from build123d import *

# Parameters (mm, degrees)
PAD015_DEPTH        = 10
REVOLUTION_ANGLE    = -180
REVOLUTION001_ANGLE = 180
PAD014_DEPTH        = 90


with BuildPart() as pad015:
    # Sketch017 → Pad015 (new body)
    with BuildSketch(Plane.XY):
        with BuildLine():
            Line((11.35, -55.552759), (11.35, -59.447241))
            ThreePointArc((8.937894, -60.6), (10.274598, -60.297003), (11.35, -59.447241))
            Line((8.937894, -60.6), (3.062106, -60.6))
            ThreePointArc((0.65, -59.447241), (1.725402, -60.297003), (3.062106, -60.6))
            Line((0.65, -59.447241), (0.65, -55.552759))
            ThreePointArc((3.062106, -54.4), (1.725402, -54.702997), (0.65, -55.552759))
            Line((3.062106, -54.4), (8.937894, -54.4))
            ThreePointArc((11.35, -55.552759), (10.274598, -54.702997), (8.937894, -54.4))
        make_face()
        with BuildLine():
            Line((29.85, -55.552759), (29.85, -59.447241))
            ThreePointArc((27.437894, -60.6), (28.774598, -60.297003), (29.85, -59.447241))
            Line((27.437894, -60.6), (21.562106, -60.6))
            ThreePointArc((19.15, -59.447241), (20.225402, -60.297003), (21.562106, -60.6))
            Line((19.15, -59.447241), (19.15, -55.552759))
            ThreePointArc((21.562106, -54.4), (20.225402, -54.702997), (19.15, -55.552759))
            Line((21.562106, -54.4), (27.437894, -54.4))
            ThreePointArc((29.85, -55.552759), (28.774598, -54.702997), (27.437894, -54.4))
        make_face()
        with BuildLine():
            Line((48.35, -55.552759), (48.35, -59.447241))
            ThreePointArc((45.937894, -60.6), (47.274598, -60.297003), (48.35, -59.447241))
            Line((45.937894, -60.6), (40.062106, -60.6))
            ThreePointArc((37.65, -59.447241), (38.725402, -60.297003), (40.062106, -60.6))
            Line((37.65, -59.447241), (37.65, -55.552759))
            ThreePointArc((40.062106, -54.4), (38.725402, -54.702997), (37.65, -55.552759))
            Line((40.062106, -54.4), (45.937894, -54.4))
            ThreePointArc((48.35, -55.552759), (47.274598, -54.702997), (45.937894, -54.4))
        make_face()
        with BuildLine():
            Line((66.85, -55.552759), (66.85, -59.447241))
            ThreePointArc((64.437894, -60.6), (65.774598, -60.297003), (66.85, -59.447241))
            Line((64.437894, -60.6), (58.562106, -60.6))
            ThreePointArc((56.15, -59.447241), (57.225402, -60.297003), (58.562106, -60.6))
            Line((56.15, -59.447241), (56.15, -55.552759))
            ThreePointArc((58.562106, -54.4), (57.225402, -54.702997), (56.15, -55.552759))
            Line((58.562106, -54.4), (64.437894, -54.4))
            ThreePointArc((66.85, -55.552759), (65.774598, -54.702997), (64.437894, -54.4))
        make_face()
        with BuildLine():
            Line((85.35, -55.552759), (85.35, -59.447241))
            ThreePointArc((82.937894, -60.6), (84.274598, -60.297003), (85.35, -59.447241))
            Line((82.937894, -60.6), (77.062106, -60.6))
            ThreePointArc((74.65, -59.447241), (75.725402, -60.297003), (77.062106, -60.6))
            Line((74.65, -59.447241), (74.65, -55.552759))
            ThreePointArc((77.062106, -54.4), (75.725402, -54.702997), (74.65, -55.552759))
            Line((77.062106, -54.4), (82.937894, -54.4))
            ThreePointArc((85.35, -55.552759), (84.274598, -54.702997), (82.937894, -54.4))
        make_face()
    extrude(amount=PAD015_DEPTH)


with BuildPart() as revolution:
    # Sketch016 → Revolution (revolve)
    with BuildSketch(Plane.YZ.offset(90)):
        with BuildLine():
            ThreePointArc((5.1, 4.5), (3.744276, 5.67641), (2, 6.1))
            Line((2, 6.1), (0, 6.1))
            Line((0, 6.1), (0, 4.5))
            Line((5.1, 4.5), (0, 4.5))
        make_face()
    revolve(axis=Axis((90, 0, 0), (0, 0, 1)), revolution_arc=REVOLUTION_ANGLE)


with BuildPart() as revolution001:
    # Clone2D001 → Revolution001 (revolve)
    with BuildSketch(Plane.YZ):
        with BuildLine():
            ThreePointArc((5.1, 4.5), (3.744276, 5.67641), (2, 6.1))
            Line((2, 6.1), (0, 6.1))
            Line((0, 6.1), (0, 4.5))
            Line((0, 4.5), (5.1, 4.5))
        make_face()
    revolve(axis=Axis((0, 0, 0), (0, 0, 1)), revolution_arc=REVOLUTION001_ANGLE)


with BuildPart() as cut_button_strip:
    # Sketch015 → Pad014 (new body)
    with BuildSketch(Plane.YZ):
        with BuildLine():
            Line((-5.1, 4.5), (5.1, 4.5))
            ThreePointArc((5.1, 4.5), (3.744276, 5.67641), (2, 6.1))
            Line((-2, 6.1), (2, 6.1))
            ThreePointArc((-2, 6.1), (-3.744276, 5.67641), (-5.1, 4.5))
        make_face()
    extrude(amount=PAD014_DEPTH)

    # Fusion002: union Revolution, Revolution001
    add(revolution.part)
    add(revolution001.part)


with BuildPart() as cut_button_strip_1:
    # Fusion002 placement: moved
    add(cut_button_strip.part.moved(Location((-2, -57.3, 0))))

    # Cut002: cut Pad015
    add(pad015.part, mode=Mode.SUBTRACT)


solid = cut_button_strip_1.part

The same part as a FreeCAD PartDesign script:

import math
import FreeCAD as App
import Part
import Sketcher

doc = App.newDocument("Part")
body = doc.addObject("PartDesign::Body", "Body")
body.AllowCompound = True

# Sketch on XY plane
sketch1 = body.newObject("Sketcher::SketchObject", "Sketch")
sketch1.AttachmentSupport = (doc.getObject("XY_Plane"), [""])
sketch1.MapMode = "FlatFace"
sketch1.addGeometry([
    Part.LineSegment(App.Vector(11.3, -59.4, 0), App.Vector(11.3, -55.6, 0)),  # 0
    Part.ArcOfCircle(Part.Circle(App.Vector(8.9, -57.5, 0), App.Vector(0, 0, 1), 3.1), math.radians(39), math.radians(90)),  # 1
    Part.LineSegment(App.Vector(8.9, -54.4, 0), App.Vector(3.1, -54.4, 0)),  # 2
    Part.ArcOfCircle(Part.Circle(App.Vector(3.1, -57.5, 0), App.Vector(0, 0, 1), 3.1), math.radians(90), math.radians(141)),  # 3
    Part.LineSegment(App.Vector(0.7, -55.6, 0), App.Vector(0.7, -59.4, 0)),  # 4
    Part.ArcOfCircle(Part.Circle(App.Vector(3.1, -57.5, 0), App.Vector(0, 0, 1), 3.1), math.radians(-141), math.radians(-90)),  # 5
    Part.LineSegment(App.Vector(3.1, -60.6, 0), App.Vector(8.9, -60.6, 0)),  # 6
    Part.ArcOfCircle(Part.Circle(App.Vector(8.9, -57.5, 0), App.Vector(0, 0, 1), 3.1), math.radians(-90), math.radians(-39)),  # 7
    Part.LineSegment(App.Vector(29.9, -59.4, 0), App.Vector(29.9, -55.6, 0)),  # 8
    Part.ArcOfCircle(Part.Circle(App.Vector(27.4, -57.5, 0), App.Vector(0, 0, 1), 3.1), math.radians(39), math.radians(90)),  # 9
    Part.LineSegment(App.Vector(27.4, -54.4, 0), App.Vector(21.6, -54.4, 0)),  # 10
    Part.ArcOfCircle(Part.Circle(App.Vector(21.6, -57.5, 0), App.Vector(0, 0, 1), 3.1), math.radians(90), math.radians(141)),  # 11
    Part.LineSegment(App.Vector(19.1, -55.6, 0), App.Vector(19.1, -59.4, 0)),  # 12
    Part.ArcOfCircle(Part.Circle(App.Vector(21.6, -57.5, 0), App.Vector(0, 0, 1), 3.1), math.radians(-141), math.radians(-90)),  # 13
    Part.LineSegment(App.Vector(21.6, -60.6, 0), App.Vector(27.4, -60.6, 0)),  # 14
    Part.ArcOfCircle(Part.Circle(App.Vector(27.4, -57.5, 0), App.Vector(0, 0, 1), 3.1), math.radians(-90), math.radians(-39)),  # 15
    Part.LineSegment(App.Vector(48.4, -59.4, 0), App.Vector(48.4, -55.6, 0)),  # 16
    Part.ArcOfCircle(Part.Circle(App.Vector(45.9, -57.5, 0), App.Vector(0, 0, 1), 3.1), math.radians(39), math.radians(90)),  # 17
    Part.LineSegment(App.Vector(45.9, -54.4, 0), App.Vector(40.1, -54.4, 0)),  # 18
    Part.ArcOfCircle(Part.Circle(App.Vector(40.1, -57.5, 0), App.Vector(0, 0, 1), 3.1), math.radians(90), math.radians(141)),  # 19
    Part.LineSegment(App.Vector(37.6, -55.6, 0), App.Vector(37.6, -59.4, 0)),  # 20
    Part.ArcOfCircle(Part.Circle(App.Vector(40.1, -57.5, 0), App.Vector(0, 0, 1), 3.1), math.radians(-141), math.radians(-90)),  # 21
    Part.LineSegment(App.Vector(40.1, -60.6, 0), App.Vector(45.9, -60.6, 0)),  # 22
    Part.ArcOfCircle(Part.Circle(App.Vector(45.9, -57.5, 0), App.Vector(0, 0, 1), 3.1), math.radians(-90), math.radians(-39)),  # 23
    Part.LineSegment(App.Vector(66.8, -59.4, 0), App.Vector(66.8, -55.6, 0)),  # 24
    Part.ArcOfCircle(Part.Circle(App.Vector(64.4, -57.5, 0), App.Vector(0, 0, 1), 3.1), math.radians(39), math.radians(90)),  # 25
    Part.LineSegment(App.Vector(64.4, -54.4, 0), App.Vector(58.6, -54.4, 0)),  # 26
    Part.ArcOfCircle(Part.Circle(App.Vector(58.6, -57.5, 0), App.Vector(0, 0, 1), 3.1), math.radians(90), math.radians(141)),  # 27
    Part.LineSegment(App.Vector(56.1, -55.6, 0), App.Vector(56.1, -59.4, 0)),  # 28
    Part.ArcOfCircle(Part.Circle(App.Vector(58.6, -57.5, 0), App.Vector(0, 0, 1), 3.1), math.radians(-141), math.radians(-90)),  # 29
    Part.LineSegment(App.Vector(58.6, -60.6, 0), App.Vector(64.4, -60.6, 0)),  # 30
    Part.ArcOfCircle(Part.Circle(App.Vector(64.4, -57.5, 0), App.Vector(0, 0, 1), 3.1), math.radians(-90), math.radians(-39)),  # 31
    Part.LineSegment(App.Vector(85.3, -59.4, 0), App.Vector(85.3, -55.6, 0)),  # 32
    Part.ArcOfCircle(Part.Circle(App.Vector(82.9, -57.5, 0), App.Vector(0, 0, 1), 3.1), math.radians(39), math.radians(90)),  # 33
    Part.LineSegment(App.Vector(82.9, -54.4, 0), App.Vector(77.1, -54.4, 0)),  # 34
    Part.ArcOfCircle(Part.Circle(App.Vector(77.1, -57.5, 0), App.Vector(0, 0, 1), 3.1), math.radians(90), math.radians(141)),  # 35
    Part.LineSegment(App.Vector(74.7, -55.6, 0), App.Vector(74.7, -59.4, 0)),  # 36
    Part.ArcOfCircle(Part.Circle(App.Vector(77.1, -57.5, 0), App.Vector(0, 0, 1), 3.1), math.radians(-141), math.radians(-90)),  # 37
    Part.LineSegment(App.Vector(77.1, -60.6, 0), App.Vector(82.9, -60.6, 0)),  # 38
    Part.ArcOfCircle(Part.Circle(App.Vector(82.9, -57.5, 0), App.Vector(0, 0, 1), 3.1), math.radians(-90), math.radians(-39)),  # 39
], False)
sketch1.addConstraint([
    Sketcher.Constraint("Coincident", 0, 2, 1, 1),
    Sketcher.Constraint("Tangent", 1, 2, 2, 1),
    Sketcher.Constraint("Tangent", 2, 2, 3, 1),
    Sketcher.Constraint("Coincident", 3, 2, 4, 1),
    Sketcher.Constraint("Coincident", 4, 2, 5, 1),
    Sketcher.Constraint("Tangent", 5, 2, 6, 1),
    Sketcher.Constraint("Tangent", 6, 2, 7, 1),
    Sketcher.Constraint("Coincident", 7, 2, 0, 1),
    Sketcher.Constraint("Coincident", 8, 2, 9, 1),
    Sketcher.Constraint("Tangent", 9, 2, 10, 1),
    Sketcher.Constraint("Tangent", 10, 2, 11, 1),
    Sketcher.Constraint("Coincident", 11, 2, 12, 1),
    Sketcher.Constraint("Coincident", 12, 2, 13, 1),
    Sketcher.Constraint("Tangent", 13, 2, 14, 1),
    Sketcher.Constraint("Tangent", 14, 2, 15, 1),
    Sketcher.Constraint("Coincident", 15, 2, 8, 1),
    Sketcher.Constraint("Coincident", 16, 2, 17, 1),
    Sketcher.Constraint("Tangent", 17, 2, 18, 1),
    Sketcher.Constraint("Tangent", 18, 2, 19, 1),
    Sketcher.Constraint("Coincident", 19, 2, 20, 1),
    Sketcher.Constraint("Coincident", 20, 2, 21, 1),
    Sketcher.Constraint("Tangent", 21, 2, 22, 1),
    Sketcher.Constraint("Tangent", 22, 2, 23, 1),
    Sketcher.Constraint("Coincident", 23, 2, 16, 1),
    Sketcher.Constraint("Coincident", 24, 2, 25, 1),
    Sketcher.Constraint("Tangent", 25, 2, 26, 1),
    Sketcher.Constraint("Tangent", 26, 2, 27, 1),
    Sketcher.Constraint("Coincident", 27, 2, 28, 1),
    Sketcher.Constraint("Coincident", 28, 2, 29, 1),
    Sketcher.Constraint("Tangent", 29, 2, 30, 1),
    Sketcher.Constraint("Tangent", 30, 2, 31, 1),
    Sketcher.Constraint("Coincident", 31, 2, 24, 1),
    Sketcher.Constraint("Coincident", 32, 2, 33, 1),
    Sketcher.Constraint("Tangent", 33, 2, 34, 1),
    Sketcher.Constraint("Tangent", 34, 2, 35, 1),
    Sketcher.Constraint("Coincident", 35, 2, 36, 1),
    Sketcher.Constraint("Coincident", 36, 2, 37, 1),
    Sketcher.Constraint("Tangent", 37, 2, 38, 1),
    Sketcher.Constraint("Tangent", 38, 2, 39, 1),
    Sketcher.Constraint("Coincident", 39, 2, 32, 1),
    Sketcher.Constraint("Vertical", 0),
    Sketcher.Constraint("Horizontal", 2),
    Sketcher.Constraint("Vertical", 4),
    Sketcher.Constraint("Horizontal", 6),
    Sketcher.Constraint("Vertical", 8),
    Sketcher.Constraint("Horizontal", 10),
    Sketcher.Constraint("Vertical", 12),
    Sketcher.Constraint("Horizontal", 14),
    Sketcher.Constraint("Vertical", 16),
    Sketcher.Constraint("Horizontal", 18),
    Sketcher.Constraint("Vertical", 20),
    Sketcher.Constraint("Horizontal", 22),
    Sketcher.Constraint("Vertical", 24),
    Sketcher.Constraint("Horizontal", 26),
    Sketcher.Constraint("Vertical", 28),
    Sketcher.Constraint("Horizontal", 30),
    Sketcher.Constraint("Vertical", 32),
    Sketcher.Constraint("Horizontal", 34),
    Sketcher.Constraint("Vertical", 36),
    Sketcher.Constraint("Horizontal", 38),
    Sketcher.Constraint("Coincident", 5, 3, 3, 3),
    Sketcher.Constraint("Coincident", 7, 3, 1, 3),
    Sketcher.Constraint("Coincident", 13, 3, 11, 3),
    Sketcher.Constraint("Coincident", 15, 3, 9, 3),
    Sketcher.Constraint("Coincident", 21, 3, 19, 3),
    Sketcher.Constraint("Coincident", 23, 3, 17, 3),
    Sketcher.Constraint("Coincident", 29, 3, 27, 3),
    Sketcher.Constraint("Coincident", 31, 3, 25, 3),
    Sketcher.Constraint("Coincident", 37, 3, 35, 3),
    Sketcher.Constraint("Coincident", 39, 3, 33, 3),
    Sketcher.Constraint("Equal", 1, 3),
    Sketcher.Constraint("Equal", 3, 5),
    Sketcher.Constraint("Equal", 7, 9),
    Sketcher.Constraint("Equal", 9, 11),
    Sketcher.Constraint("Equal", 11, 13),
    Sketcher.Constraint("Equal", 15, 17),
    Sketcher.Constraint("Equal", 17, 19),
    Sketcher.Constraint("Equal", 19, 21),
    Sketcher.Constraint("Equal", 23, 25),
    Sketcher.Constraint("Equal", 25, 27),
    Sketcher.Constraint("Equal", 27, 29),
    Sketcher.Constraint("Equal", 31, 33),
    Sketcher.Constraint("Equal", 33, 35),
    Sketcher.Constraint("Equal", 35, 37),
    Sketcher.Constraint("Horizontal", 3, 3, 9, 3),
    Sketcher.Constraint("Horizontal", 11, 3, 17, 3),
    Sketcher.Constraint("Horizontal", 19, 3, 25, 3),
    Sketcher.Constraint("Horizontal", 27, 3, 33, 3),
    Sketcher.Constraint("Horizontal", 0, 2, 3, 2),
    Sketcher.Constraint("Horizontal", 3, 2, 8, 2),
    Sketcher.Constraint("Horizontal", 8, 2, 11, 2),
    Sketcher.Constraint("Horizontal", 11, 2, 16, 2),
    Sketcher.Constraint("Horizontal", 16, 2, 19, 2),
    Sketcher.Constraint("Horizontal", 19, 2, 24, 2),
    Sketcher.Constraint("Horizontal", 24, 2, 27, 2),
    Sketcher.Constraint("Horizontal", 27, 2, 32, 2),
    Sketcher.Constraint("Horizontal", 32, 2, 35, 2),
    Sketcher.Constraint("Equal", 6, 10),
    Sketcher.Constraint("Equal", 14, 18),
    Sketcher.Constraint("Equal", 22, 26),
    Sketcher.Constraint("Equal", 30, 34),
    Sketcher.Constraint("DistanceX", 1, 3, 17, 3, 37.0),
    Sketcher.Constraint("DistanceX", 9, 3, 25, 3, 37.0),
    Sketcher.Constraint("DistanceX", 17, 3, 33, 3, 37.0),
    Sketcher.Constraint("DistanceY", 1, 2, -1, 1, 54.4),
    Sketcher.Constraint("DistanceY", 5, 2, -1, 1, 60.6),
    Sketcher.Constraint("DistanceX", 1, 3, 9, 3, 18.5),
    Sketcher.Constraint("DistanceX", 0, 2, 11, 2, 7.8),
    Sketcher.Constraint("DistanceX", -1, 1, 0, 2, 11.35),
    Sketcher.Constraint("DistanceY", 0, 1, 0, 2, 3.894482),
])
pad1 = body.newObject("PartDesign::Pad", "Pad")
pad1.Profile = sketch1
pad1.Length = 10
body2 = doc.addObject("PartDesign::Body", "Body001")

# Sketch on YZ plane
sketch2 = body2.newObject("Sketcher::SketchObject", "Sketch001")
sketch2.AttachmentSupport = (doc.getObject("YZ_Plane001"), [""])
sketch2.MapMode = "FlatFace"
sketch2.AttachmentOffset = App.Placement(App.Vector(0, 0, 90), App.Rotation())
sketch2.addGeometry([
    Part.ArcOfCircle(Part.Circle(App.Vector(2, 2.3, 0), App.Vector(0, 0, 1), 3.8), math.radians(35), math.radians(90)),
    Part.LineSegment(App.Vector(2, 6.1, 0), App.Vector(0, 6.1, 0)),
    Part.LineSegment(App.Vector(0, 6.1, 0), App.Vector(0, 4.5, 0)),
    Part.LineSegment(App.Vector(0, 4.5, 0), App.Vector(5.1, 4.5, 0)),
], False)
sketch2.addConstraint([
    Sketcher.Constraint("Tangent", 0, 2, 1, 1),
    Sketcher.Constraint("Coincident", 1, 2, 2, 1),
    Sketcher.Constraint("Coincident", 2, 2, 3, 1),
    Sketcher.Constraint("Coincident", 3, 2, 0, 1),
    Sketcher.Constraint("Horizontal", 1),
    Sketcher.Constraint("Vertical", 2),
    Sketcher.Constraint("Horizontal", 3),
    Sketcher.Constraint("PointOnObject", 1, 2, -2),
    Sketcher.Constraint("DistanceX", 1, 2, 1, 1, 2.0),
    Sketcher.Constraint("DistanceX", 3, 1, 3, 2, 5.1),
    Sketcher.Constraint("DistanceY", 2, 2, 2, 1, 1.6),
    Sketcher.Constraint("DistanceY", -1, 1, 0, 2, 6.1),
])
revolution = body2.newObject("PartDesign::Revolution", "Revolution")
revolution.Profile = sketch2
revolution.ReferenceAxis = (sketch2, ["V_Axis"])
revolution.Angle = 180
revolution.Reversed = True
body3 = doc.addObject("PartDesign::Body", "Body002")

# Sketch on YZ plane
sketch3 = body3.newObject("Sketcher::SketchObject", "Sketch002")
sketch3.AttachmentSupport = (doc.getObject("YZ_Plane002"), [""])
sketch3.MapMode = "FlatFace"
sketch3.addGeometry([
    Part.ArcOfCircle(Part.Circle(App.Vector(2, 2.3, 0), App.Vector(0, 0, 1), 3.8), math.radians(35), math.radians(90)),
    Part.LineSegment(App.Vector(2, 6.1, 0), App.Vector(0, 6.1, 0)),
    Part.LineSegment(App.Vector(0, 6.1, 0), App.Vector(0, 4.5, 0)),
    Part.LineSegment(App.Vector(0, 4.5, 0), App.Vector(5.1, 4.5, 0)),
], False)
sketch3.addConstraint([
    Sketcher.Constraint("Tangent", 0, 2, 1, 1),
    Sketcher.Constraint("Coincident", 1, 2, 2, 1),
    Sketcher.Constraint("Coincident", 2, 2, 3, 1),
    Sketcher.Constraint("Coincident", 3, 2, 0, 1),
    Sketcher.Constraint("Horizontal", 1),
    Sketcher.Constraint("Vertical", 2),
    Sketcher.Constraint("Horizontal", 3),
    Sketcher.Constraint("PointOnObject", 1, 2, -2),
    Sketcher.Constraint("DistanceX", 1, 2, 1, 1, 2.0),
    Sketcher.Constraint("DistanceX", 3, 1, 3, 2, 5.1),
    Sketcher.Constraint("DistanceY", 2, 2, 2, 1, 1.6),
    Sketcher.Constraint("DistanceY", -1, 1, 0, 2, 6.1),
])
revolution2 = body3.newObject("PartDesign::Revolution", "Revolution001")
revolution2.Profile = sketch3
revolution2.ReferenceAxis = (sketch3, ["V_Axis"])
revolution2.Angle = 180
body4 = doc.addObject("PartDesign::Body", "Body003")

# Sketch on YZ plane
sketch4 = body4.newObject("Sketcher::SketchObject", "Sketch003")
sketch4.AttachmentSupport = (doc.getObject("YZ_Plane003"), [""])
sketch4.MapMode = "FlatFace"
sketch4.addGeometry([
    Part.LineSegment(App.Vector(-5.1, 4.5, 0), App.Vector(5.1, 4.5, 0)),
    Part.ArcOfCircle(Part.Circle(App.Vector(2, 2.3, 0), App.Vector(0, 0, 1), 3.8), math.radians(35), math.radians(90)),
    Part.LineSegment(App.Vector(2, 6.1, 0), App.Vector(-2, 6.1, 0)),
    Part.ArcOfCircle(Part.Circle(App.Vector(-2, 2.3, 0), App.Vector(0, 0, 1), 3.8), math.radians(90), math.radians(145)),
], False)
sketch4.addConstraint([
    Sketcher.Constraint("Coincident", 0, 2, 1, 1),
    Sketcher.Constraint("Tangent", 1, 2, 2, 1),
    Sketcher.Constraint("Tangent", 2, 2, 3, 1),
    Sketcher.Constraint("Coincident", 3, 2, 0, 1),
    Sketcher.Constraint("Horizontal", 0),
    Sketcher.Constraint("Horizontal", 2),
    Sketcher.Constraint("Equal", 1, 3),
    Sketcher.Constraint("DistanceX", 2, 2, 2, 1, 4.0),
    Sketcher.Constraint("DistanceX", 0, 1, 0, 2, 10.2),
    Sketcher.Constraint("DistanceX", -1, 1, 1, 2, 2.0),
    Sketcher.Constraint("DistanceY", -1, 1, 0, 2, 4.5),
    Sketcher.Constraint("DistanceY", -1, 1, 1, 2, 6.1),
])
pad2 = body4.newObject("PartDesign::Pad", "Pad001")
pad2.Profile = sketch4
pad2.Length = 90
doc.recompute()

boolean = body4.newObject("PartDesign::Boolean", "Boolean")
boolean.Type = "Fuse"
boolean.addObjects([body2])
doc.recompute()

boolean2 = body4.newObject("PartDesign::Boolean", "Boolean001")
boolean2.Type = "Fuse"
boolean2.addObjects([body3])
body5 = doc.addObject("PartDesign::Body", "Body004")
doc.recompute()

body4.Placement = App.Placement(App.Vector(-2, -57.3, 0), App.Rotation(App.Vector(0, 0, 1), 0))
boolean3 = body5.newObject("PartDesign::Boolean", "Boolean002")
boolean3.Type = "Fuse"
boolean3.addObjects([body4])
doc.recompute()

boolean4 = body5.newObject("PartDesign::Boolean", "Boolean003")
boolean4.Type = "Cut"
boolean4.addObjects([body])

doc.recompute()
